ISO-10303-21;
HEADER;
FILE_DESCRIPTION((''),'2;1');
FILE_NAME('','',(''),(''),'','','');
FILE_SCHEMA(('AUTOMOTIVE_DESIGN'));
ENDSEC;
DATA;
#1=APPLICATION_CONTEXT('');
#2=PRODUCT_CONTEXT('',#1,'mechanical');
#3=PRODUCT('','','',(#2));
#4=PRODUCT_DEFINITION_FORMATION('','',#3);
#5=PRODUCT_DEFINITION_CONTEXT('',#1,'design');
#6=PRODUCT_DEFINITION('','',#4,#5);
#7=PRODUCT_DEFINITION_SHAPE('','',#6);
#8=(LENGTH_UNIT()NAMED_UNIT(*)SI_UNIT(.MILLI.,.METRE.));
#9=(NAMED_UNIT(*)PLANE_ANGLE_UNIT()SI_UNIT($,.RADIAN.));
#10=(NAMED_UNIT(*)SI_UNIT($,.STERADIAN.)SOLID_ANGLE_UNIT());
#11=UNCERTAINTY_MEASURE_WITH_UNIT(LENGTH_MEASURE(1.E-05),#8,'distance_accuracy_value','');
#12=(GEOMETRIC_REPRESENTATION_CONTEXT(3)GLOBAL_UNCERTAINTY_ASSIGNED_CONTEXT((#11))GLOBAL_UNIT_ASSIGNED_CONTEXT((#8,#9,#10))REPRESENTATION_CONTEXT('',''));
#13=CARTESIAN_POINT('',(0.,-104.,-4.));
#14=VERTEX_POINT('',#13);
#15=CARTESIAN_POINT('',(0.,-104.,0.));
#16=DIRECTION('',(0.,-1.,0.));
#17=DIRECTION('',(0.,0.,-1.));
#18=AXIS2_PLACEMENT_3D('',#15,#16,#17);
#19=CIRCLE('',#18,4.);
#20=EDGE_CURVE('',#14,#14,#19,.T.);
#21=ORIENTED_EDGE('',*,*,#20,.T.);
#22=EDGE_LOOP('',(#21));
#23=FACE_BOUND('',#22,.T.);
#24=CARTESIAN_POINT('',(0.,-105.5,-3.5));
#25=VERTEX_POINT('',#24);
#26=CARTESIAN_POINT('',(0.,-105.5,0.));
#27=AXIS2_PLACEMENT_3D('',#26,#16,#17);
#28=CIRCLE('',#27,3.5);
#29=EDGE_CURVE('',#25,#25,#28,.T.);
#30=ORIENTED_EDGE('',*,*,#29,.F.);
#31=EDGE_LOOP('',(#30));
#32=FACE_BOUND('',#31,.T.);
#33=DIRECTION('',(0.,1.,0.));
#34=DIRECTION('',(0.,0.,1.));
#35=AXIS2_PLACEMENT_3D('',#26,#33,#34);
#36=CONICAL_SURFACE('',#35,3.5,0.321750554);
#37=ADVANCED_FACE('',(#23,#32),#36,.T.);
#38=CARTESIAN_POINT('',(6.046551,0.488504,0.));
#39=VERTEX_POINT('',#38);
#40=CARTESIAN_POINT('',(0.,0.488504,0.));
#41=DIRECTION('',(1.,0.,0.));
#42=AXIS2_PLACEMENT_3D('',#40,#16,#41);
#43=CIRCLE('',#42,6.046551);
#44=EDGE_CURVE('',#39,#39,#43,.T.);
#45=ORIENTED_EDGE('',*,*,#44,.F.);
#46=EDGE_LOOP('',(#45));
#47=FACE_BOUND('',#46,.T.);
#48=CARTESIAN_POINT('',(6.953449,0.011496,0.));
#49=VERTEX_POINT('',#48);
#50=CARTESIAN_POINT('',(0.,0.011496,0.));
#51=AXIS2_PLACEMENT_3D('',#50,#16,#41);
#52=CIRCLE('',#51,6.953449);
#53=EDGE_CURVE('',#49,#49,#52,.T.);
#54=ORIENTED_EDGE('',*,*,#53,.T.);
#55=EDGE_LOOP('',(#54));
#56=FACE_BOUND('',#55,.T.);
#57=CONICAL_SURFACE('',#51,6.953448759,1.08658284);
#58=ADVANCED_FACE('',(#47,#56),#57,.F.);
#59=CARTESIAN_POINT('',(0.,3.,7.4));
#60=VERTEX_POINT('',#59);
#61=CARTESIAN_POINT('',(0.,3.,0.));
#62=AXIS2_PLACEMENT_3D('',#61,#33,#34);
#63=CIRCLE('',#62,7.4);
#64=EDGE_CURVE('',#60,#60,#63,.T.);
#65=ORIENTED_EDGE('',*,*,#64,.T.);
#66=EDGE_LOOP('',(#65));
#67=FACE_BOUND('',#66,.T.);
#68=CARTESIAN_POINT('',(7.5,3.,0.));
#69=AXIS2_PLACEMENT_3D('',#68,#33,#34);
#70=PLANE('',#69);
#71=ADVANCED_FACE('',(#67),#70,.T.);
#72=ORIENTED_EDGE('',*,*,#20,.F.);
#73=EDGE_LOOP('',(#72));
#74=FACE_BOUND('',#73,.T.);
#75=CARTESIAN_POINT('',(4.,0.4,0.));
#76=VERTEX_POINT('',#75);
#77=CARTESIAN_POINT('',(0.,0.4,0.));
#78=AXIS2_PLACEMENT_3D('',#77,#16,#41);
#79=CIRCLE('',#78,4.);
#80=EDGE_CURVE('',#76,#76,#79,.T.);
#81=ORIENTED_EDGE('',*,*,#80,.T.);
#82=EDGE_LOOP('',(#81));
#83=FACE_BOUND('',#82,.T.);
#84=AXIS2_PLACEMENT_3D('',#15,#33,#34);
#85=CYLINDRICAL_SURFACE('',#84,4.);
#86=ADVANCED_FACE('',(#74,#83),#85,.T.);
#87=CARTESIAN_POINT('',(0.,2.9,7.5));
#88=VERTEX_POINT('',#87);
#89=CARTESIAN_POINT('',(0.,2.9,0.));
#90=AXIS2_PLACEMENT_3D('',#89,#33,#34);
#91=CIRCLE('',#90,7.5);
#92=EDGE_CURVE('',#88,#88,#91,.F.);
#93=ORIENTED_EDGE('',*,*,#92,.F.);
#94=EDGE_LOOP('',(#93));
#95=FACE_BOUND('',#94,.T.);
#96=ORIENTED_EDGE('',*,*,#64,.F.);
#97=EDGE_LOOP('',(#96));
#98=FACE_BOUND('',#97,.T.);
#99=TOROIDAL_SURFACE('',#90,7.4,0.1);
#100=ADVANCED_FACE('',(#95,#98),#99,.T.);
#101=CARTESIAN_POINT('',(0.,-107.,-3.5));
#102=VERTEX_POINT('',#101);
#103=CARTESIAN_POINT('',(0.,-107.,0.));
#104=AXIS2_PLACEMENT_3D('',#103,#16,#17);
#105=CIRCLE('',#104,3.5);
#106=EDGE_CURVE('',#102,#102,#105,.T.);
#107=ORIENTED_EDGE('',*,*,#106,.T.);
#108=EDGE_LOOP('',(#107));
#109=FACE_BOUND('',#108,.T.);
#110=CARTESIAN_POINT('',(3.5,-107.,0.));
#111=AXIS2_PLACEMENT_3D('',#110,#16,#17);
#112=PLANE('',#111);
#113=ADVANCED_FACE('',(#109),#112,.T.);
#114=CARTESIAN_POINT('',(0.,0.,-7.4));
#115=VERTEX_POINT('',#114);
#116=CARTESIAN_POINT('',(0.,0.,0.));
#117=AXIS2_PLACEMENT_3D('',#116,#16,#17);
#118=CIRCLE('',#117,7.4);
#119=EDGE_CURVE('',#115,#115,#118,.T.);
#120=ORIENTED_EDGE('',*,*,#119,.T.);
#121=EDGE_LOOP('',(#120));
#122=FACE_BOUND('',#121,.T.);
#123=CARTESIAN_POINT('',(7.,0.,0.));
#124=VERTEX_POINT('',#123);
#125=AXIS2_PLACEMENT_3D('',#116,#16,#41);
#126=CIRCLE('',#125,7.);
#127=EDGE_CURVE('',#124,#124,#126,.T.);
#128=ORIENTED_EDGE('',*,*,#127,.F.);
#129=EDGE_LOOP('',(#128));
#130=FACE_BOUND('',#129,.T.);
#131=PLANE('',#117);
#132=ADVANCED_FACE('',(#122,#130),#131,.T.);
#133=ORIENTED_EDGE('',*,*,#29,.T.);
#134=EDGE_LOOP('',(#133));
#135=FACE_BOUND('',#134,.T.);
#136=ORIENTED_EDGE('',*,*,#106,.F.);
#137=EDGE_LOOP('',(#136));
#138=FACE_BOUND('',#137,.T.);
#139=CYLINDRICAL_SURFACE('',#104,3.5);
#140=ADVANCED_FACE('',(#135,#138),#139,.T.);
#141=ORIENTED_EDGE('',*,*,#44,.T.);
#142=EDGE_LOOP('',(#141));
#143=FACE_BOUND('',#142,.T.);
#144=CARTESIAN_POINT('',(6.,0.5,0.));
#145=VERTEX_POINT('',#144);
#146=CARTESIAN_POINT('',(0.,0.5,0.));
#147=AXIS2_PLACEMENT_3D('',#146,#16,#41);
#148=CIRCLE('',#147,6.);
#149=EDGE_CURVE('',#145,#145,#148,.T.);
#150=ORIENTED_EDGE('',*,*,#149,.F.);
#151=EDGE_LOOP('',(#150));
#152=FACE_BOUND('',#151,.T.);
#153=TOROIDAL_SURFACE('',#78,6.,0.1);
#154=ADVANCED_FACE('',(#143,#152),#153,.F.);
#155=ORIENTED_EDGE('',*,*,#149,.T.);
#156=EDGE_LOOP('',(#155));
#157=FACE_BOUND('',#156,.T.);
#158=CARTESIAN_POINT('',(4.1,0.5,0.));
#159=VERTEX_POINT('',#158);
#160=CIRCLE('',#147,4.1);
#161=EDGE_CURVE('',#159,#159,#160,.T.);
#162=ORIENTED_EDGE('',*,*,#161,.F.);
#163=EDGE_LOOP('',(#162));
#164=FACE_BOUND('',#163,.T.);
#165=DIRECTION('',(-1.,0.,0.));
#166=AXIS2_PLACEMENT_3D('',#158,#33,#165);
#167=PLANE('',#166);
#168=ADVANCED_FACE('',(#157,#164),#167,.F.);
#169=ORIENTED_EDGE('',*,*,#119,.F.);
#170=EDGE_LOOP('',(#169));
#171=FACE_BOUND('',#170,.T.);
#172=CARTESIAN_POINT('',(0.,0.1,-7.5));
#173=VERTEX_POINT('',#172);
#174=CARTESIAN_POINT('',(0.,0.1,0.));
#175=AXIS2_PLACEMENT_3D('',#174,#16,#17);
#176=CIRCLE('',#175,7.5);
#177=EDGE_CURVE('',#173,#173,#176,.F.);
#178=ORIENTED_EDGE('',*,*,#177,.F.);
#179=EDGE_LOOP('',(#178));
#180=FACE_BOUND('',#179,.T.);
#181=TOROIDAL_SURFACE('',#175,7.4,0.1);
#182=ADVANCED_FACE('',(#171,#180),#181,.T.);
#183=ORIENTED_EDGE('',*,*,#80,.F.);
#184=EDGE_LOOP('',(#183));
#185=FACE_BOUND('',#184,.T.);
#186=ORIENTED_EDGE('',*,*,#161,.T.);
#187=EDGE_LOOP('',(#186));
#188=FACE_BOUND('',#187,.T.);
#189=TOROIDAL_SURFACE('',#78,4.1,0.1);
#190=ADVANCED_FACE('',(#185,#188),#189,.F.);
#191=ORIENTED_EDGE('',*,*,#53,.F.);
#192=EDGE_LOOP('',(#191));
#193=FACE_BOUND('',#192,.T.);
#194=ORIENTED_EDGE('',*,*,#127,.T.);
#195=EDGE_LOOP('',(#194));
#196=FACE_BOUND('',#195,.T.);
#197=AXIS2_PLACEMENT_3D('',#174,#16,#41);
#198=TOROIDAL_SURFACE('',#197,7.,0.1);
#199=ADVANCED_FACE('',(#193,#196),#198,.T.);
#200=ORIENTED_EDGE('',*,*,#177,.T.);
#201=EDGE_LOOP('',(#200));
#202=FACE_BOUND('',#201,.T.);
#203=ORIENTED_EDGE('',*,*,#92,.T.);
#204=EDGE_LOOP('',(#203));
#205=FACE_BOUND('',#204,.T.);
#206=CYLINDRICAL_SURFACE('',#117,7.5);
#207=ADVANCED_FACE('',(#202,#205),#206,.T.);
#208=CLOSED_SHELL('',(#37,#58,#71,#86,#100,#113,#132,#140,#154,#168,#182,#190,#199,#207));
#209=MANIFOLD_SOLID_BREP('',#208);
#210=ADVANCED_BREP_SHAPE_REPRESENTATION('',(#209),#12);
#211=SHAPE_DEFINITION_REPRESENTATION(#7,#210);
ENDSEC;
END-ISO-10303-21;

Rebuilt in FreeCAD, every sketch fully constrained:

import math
import FreeCAD as App
import Part
import Sketcher
from FreeCAD import Vector
Q = App.Units.Quantity


def edges_at(feature, points):
    """Names of the edges that pass closest to the given points."""
    edges = feature.Shape.Edges
    near = lambda p: min(range(len(edges)), key=lambda i: edges[i].distToShape(Part.Vertex(*p))[0])
    return sorted({f"Edge{near(p) + 1}" for p in points})


def add_polygon(sketch, points):
    """Adds a closed chain of lines whose ends are joined by coincident constraints."""
    first, n = sketch.GeometryCount, len(points)
    for a, b in zip(points, points[1:] + points[:1]):
        sketch.addGeometry(Part.LineSegment(App.Vector(*a, 0), App.Vector(*b, 0)), False)
    for i in range(n):
        sketch.addConstraint(Sketcher.Constraint("Coincident", first + i, 2, first + (i + 1) % n, 1))

doc = App.newDocument("Part")
params = doc.addObject("Spreadsheet::Sheet", "Params")
for row, (alias, value) in enumerate([
    ("sketch1_diameter", "8 mm"),
    ("pad1_length", "104 mm"),
    ("sketch2_height", "3 mm"),
    ("sketch2_width", "7.5 mm"),
    ("revolution_angle", "360 deg"),
    ("sketch3_radius", "0.1 mm"),
    ("sketch3_width", "3 mm"),
    ("sketch3_width2", "1.9 mm"),
    ("sketch3_height", "0.4 mm"),
    ("groove_angle", "360 deg"),
    ("sketch4_width", "4 mm"),
    ("sketch4_height", "3 mm"),
    ("sketch4_width2", "3.5 mm"),
    ("sketch4_height2", "1.5 mm"),
    ("revolution2_angle", "360 deg"),
    ("fillet_radius", "0.1 mm"),
], start=1):
    params.set(f"A{row}", alias)
    params.set(f"B{row}", "=" + value)
    params.setAlias(f"B{row}", alias)

body = doc.addObject("PartDesign::Body", "Body")

# Sketch on XZ plane
sketch1 = body.newObject("Sketcher::SketchObject", "Sketch")
sketch1.AttachmentSupport = (doc.getObject("XZ_Plane"), [""])
sketch1.MapMode = "FlatFace"
sketch1.addGeometry(Part.Circle(Vector(0, 0, 0), Vector(0, 0, 1), 4), False)
sketch1.addConstraint(Sketcher.Constraint("Coincident", 0, 3, -1, 1))
sketch1.addConstraint(Sketcher.Constraint("Diameter", 0, Q("8 mm")))
sketch1.setExpression("Constraints[1]", "Params.sketch1_diameter")
pad1 = body.newObject("PartDesign::Pad", "Pad")
pad1.Profile = sketch1
pad1.setExpression("Length", "Params.pad1_length")

# Sketch on XY plane
sketch2 = body.newObject("Sketcher::SketchObject", "Sketch001")
sketch2.AttachmentSupport = (doc.getObject("XY_Plane"), [""])
sketch2.MapMode = "FlatFace"
add_polygon(sketch2, [(0, 3), (0, 0), (7.5, 0), (7.5, 3)])  # lines 0-3
sketch2.addConstraint(Sketcher.Constraint("Vertical", 0))
sketch2.addConstraint(Sketcher.Constraint("Horizontal", 1))
sketch2.addConstraint(Sketcher.Constraint("Vertical", 2))
sketch2.addConstraint(Sketcher.Constraint("Horizontal", 3))
sketch2.addConstraint(Sketcher.Constraint("Coincident", 0, 2, -1, 1))
sketch2.addConstraint(Sketcher.Constraint("DistanceY", 0, 2, 0, 1, Q("3 mm")))
sketch2.addConstraint(Sketcher.Constraint("DistanceX", 1, 1, 1, 2, Q("7.5 mm")))
sketch2.setExpression("Constraints[9]", "Params.sketch2_height")
sketch2.setExpression("Constraints[10]", "Params.sketch2_width")
revolution = body.newObject("PartDesign::Revolution", "Revolution")
revolution.Profile = sketch2
revolution.ReferenceAxis = (sketch2, ["V_Axis"])
revolution.setExpression("Angle", "Params.revolution_angle")

# Sketch on XY plane
sketch3 = body.newObject("Sketcher::SketchObject", "Sketch002")
sketch3.AttachmentSupport = (doc.getObject("XY_Plane"), [""])
sketch3.MapMode = "FlatFace"
sketch3.addGeometry(Part.LineSegment(Vector(4, 0.4, 0), Vector(4, 0, 0)), False)
sketch3.addGeometry(Part.LineSegment(Vector(4, 0, 0), Vector(7, 0, 0)), False)
sketch3.addGeometry(Part.ArcOfCircle(Part.Circle(Vector(7, 0.1, 0), Vector(0, 0, 1), 0.1), math.radians(-118), math.radians(-90)), False)
sketch3.addGeometry(Part.LineSegment(Vector(6.953, 0.011, 0), Vector(6.047, 0.489, 0)), False)
sketch3.addGeometry(Part.ArcOfCircle(Part.Circle(Vector(6, 0.4, 0), Vector(0, 0, 1), 0.1), math.radians(62), math.radians(90)), False)
sketch3.addGeometry(Part.LineSegment(Vector(6, 0.5, 0), Vector(4.1, 0.5, 0)), False)
sketch3.addGeometry(Part.ArcOfCircle(Part.Circle(Vector(4.1, 0.4, 0), Vector(0, 0, 1), 0.1), math.radians(90), math.radians(180)), False)
sketch3.addConstraint(Sketcher.Constraint("Coincident", 0, 2, 1, 1))
sketch3.addConstraint(Sketcher.Constraint("Tangent", 1, 2, 2, 2))
sketch3.addConstraint(Sketcher.Constraint("Tangent", 2, 1, 3, 1))
sketch3.addConstraint(Sketcher.Constraint("Tangent", 3, 2, 4, 1))
sketch3.addConstraint(Sketcher.Constraint("Tangent", 4, 2, 5, 1))
sketch3.addConstraint(Sketcher.Constraint("Tangent", 5, 2, 6, 1))
sketch3.addConstraint(Sketcher.Constraint("Tangent", 6, 2, 0, 1))
sketch3.addConstraint(Sketcher.Constraint("Vertical", 0))
sketch3.addConstraint(Sketcher.Constraint("Horizontal", 1))
sketch3.addConstraint(Sketcher.Constraint("Horizontal", 5))
sketch3.addConstraint(Sketcher.Constraint("Equal", 2, 4))
sketch3.addConstraint(Sketcher.Constraint("Equal", 4, 6))
sketch3.addConstraint(Sketcher.Constraint("PointOnObject", 0, 2, -1))
sketch3.addConstraint(Sketcher.Constraint("Radius", 2, Q("0.1 mm")))
sketch3.addConstraint(Sketcher.Constraint("DistanceX", 1, 1, 1, 2, Q("3 mm")))
sketch3.addConstraint(Sketcher.Constraint("DistanceX", 5, 2, 5, 1, Q("1.9 mm")))
sketch3.addConstraint(Sketcher.Constraint("DistanceY", 0, 2, 0, 1, Q("0.4 mm")))
sketch3.addConstraint(Sketcher.Constraint("DistanceX", -1, 1, 2, 3, Q("7 mm")))
sketch3.setExpression("Constraints[13]", "Params.sketch3_radius")
sketch3.setExpression("Constraints[14]", "Params.sketch3_width")
sketch3.setExpression("Constraints[15]", "Params.sketch3_width2")
sketch3.setExpression("Constraints[16]", "Params.sketch3_height")
groove = body.newObject("PartDesign::Groove", "Groove")
groove.Profile = sketch3
groove.ReferenceAxis = (sketch3, ["V_Axis"])
groove.setExpression("Angle", "Params.groove_angle")

# Sketch on XY plane
sketch4 = body.newObject("Sketcher::SketchObject", "Sketch003")
sketch4.AttachmentSupport = (doc.getObject("XY_Plane"), [""])
sketch4.MapMode = "FlatFace"
add_polygon(sketch4, [(3.5, -105.5), (4, -104), (0, -104), (0, -107), (3.5, -107)])  # lines 0-4
sketch4.addConstraint(Sketcher.Constraint("Horizontal", 1))
sketch4.addConstraint(Sketcher.Constraint("Vertical", 2))
sketch4.addConstraint(Sketcher.Constraint("Horizontal", 3))
sketch4.addConstraint(Sketcher.Constraint("Vertical", 4))
sketch4.addConstraint(Sketcher.Constraint("PointOnObject", 1, 2, -2))
sketch4.addConstraint(Sketcher.Constraint("DistanceX", 1, 2, 1, 1, Q("4 mm")))
sketch4.addConstraint(Sketcher.Constraint("DistanceY", 2, 2, 2, 1, Q("3 mm")))
sketch4.addConstraint(Sketcher.Constraint("DistanceX", 3, 1, 3, 2, Q("3.5 mm")))
sketch4.addConstraint(Sketcher.Constraint("DistanceY", 4, 1, 4, 2, Q("1.5 mm")))
sketch4.addConstraint(Sketcher.Constraint("DistanceY", 0, 2, -1, 1, Q("104 mm")))
sketch4.setExpression("Constraints[10]", "Params.sketch4_width")
sketch4.setExpression("Constraints[11]", "Params.sketch4_height")
sketch4.setExpression("Constraints[12]", "Params.sketch4_width2")
sketch4.setExpression("Constraints[13]", "Params.sketch4_height2")
revolution2 = body.newObject("PartDesign::Revolution", "Revolution001")
revolution2.Profile = sketch4
revolution2.ReferenceAxis = (sketch4, ["V_Axis"])
revolution2.setExpression("Angle", "Params.revolution2_angle")
doc.recompute()

fillet = body.newObject("PartDesign::Fillet", "Fillet")
fillet.Base = (revolution2, edges_at(revolution2, [(-7.5, 0, 0), (-7.5, 3, 0)]))
fillet.setExpression("Radius", "Params.fillet_radius")

doc.recompute()
